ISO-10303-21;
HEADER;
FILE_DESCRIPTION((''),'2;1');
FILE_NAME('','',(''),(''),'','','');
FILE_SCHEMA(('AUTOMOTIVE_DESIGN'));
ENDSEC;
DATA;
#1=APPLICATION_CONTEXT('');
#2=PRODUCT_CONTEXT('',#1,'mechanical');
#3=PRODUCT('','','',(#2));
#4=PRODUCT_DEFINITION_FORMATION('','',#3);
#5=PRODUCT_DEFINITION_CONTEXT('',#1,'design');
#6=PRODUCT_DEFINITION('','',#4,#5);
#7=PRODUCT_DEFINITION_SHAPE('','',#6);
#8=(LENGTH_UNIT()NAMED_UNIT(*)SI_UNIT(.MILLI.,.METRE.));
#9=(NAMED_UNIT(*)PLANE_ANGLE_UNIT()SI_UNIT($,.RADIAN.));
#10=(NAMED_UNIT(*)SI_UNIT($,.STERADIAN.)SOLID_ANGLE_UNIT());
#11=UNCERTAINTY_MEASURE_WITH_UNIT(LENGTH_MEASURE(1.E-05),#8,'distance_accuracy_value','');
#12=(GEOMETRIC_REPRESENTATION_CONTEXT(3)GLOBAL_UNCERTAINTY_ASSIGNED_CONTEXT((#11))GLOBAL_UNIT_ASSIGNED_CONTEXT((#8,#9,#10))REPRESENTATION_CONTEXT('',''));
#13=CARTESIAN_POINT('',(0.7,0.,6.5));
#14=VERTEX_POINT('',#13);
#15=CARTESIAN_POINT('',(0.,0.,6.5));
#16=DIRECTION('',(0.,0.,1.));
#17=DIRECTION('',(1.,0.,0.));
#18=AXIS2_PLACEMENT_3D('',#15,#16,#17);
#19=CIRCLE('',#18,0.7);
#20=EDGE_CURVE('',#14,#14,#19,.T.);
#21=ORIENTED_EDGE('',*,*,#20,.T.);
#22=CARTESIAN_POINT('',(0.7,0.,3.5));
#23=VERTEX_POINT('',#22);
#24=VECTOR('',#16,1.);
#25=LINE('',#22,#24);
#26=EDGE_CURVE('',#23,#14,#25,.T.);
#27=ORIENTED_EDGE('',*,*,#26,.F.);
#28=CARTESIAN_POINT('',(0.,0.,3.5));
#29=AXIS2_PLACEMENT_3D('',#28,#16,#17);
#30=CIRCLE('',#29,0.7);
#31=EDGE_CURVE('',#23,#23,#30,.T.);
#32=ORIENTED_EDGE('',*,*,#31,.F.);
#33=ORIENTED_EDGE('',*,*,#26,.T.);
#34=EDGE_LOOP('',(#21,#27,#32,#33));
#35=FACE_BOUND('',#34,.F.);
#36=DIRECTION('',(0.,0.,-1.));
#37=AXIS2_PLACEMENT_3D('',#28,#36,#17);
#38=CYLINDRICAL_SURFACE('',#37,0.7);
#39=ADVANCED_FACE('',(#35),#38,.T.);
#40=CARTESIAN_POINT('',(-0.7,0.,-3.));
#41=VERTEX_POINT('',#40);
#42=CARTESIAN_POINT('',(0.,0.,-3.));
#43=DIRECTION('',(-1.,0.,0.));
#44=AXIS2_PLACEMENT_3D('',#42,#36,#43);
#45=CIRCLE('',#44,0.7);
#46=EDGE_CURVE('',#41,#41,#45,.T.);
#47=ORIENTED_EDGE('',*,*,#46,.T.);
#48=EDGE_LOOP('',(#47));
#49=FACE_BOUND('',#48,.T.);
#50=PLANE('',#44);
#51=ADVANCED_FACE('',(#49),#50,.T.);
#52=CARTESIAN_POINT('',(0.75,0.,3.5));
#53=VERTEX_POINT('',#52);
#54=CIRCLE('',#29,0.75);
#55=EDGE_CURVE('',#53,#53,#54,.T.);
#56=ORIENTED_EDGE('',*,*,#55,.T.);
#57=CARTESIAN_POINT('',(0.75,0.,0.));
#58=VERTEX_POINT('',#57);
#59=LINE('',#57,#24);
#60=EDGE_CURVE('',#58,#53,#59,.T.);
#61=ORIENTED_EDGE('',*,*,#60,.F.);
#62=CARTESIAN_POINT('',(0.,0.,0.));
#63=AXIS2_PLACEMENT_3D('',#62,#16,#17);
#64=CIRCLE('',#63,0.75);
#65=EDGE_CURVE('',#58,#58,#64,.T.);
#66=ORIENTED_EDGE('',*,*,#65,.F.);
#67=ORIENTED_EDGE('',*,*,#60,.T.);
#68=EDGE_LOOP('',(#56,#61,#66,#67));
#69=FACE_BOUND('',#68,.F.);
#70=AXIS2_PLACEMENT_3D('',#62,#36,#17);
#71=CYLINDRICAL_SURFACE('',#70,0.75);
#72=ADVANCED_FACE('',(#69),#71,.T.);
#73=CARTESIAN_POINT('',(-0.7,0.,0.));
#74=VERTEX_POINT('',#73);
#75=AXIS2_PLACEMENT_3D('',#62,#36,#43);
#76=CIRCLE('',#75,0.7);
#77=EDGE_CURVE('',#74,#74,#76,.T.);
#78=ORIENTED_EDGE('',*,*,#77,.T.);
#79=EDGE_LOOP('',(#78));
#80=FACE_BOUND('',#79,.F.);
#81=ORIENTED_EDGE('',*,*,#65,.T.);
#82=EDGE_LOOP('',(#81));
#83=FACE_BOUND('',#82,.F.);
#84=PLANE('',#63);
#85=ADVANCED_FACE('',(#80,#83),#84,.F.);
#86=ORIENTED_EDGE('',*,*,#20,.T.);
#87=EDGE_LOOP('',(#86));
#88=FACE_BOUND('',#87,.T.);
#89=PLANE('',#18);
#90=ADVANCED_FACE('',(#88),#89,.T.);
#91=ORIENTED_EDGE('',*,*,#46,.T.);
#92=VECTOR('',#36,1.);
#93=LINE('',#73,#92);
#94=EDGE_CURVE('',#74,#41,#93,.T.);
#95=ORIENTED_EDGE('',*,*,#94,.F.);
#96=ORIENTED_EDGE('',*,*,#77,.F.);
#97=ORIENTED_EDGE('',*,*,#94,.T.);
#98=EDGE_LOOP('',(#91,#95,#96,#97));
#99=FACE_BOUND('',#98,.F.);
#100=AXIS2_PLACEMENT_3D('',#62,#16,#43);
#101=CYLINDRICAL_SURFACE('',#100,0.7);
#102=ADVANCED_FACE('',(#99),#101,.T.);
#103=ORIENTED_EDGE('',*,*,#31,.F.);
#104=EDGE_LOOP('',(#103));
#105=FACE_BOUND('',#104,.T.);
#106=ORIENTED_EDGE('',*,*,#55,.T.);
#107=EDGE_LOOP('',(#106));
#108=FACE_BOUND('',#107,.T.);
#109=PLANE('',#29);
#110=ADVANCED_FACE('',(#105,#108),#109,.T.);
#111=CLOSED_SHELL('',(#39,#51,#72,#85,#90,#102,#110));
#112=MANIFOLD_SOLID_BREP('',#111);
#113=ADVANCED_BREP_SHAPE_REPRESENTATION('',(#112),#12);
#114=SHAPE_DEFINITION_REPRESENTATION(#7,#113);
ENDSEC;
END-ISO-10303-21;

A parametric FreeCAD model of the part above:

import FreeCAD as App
import Part
import Sketcher

V = App.Vector
Q = App.Units.Quantity

doc = App.newDocument("Part")
body = doc.addObject("PartDesign::Body", "Body")

sketch1 = body.newObject("Sketcher::SketchObject", "Sketch")
sketch1.AttachmentSupport = (doc.getObject("XY_Plane"), [""])
sketch1.MapMode = "FlatFace"
sketch1.addGeometry(Part.Circle(V(0, 0, 0), V(0, 0, 1), 0.8), False)
sketch1.addConstraint(Sketcher.Constraint("Coincident", 0, 3, -1, 1))
sketch1.addConstraint(Sketcher.Constraint("Diameter", 0, Q("1.5 mm")))
pad1 = body.newObject("PartDesign::Pad", "Pad")
pad1.Profile = sketch1
pad1.Length = 3.5

sketch2 = body.newObject("Sketcher::SketchObject", "Sketch001")
sketch2.AttachmentSupport = (doc.getObject("XY_Plane"), [""])
sketch2.MapMode = "FlatFace"
sketch2.AttachmentOffset = App.Placement(V(0, 0, 3.5), App.Rotation())
sketch2.addGeometry(Part.Circle(V(0, 0, 0), V(0, 0, 1), 0.7), False)
sketch2.addConstraint(Sketcher.Constraint("Coincident", 0, 3, -1, 1))
sketch2.addConstraint(Sketcher.Constraint("Diameter", 0, Q("1.4 mm")))
pad2 = body.newObject("PartDesign::Pad", "Pad001")
pad2.Profile = sketch2
pad2.Length = 3

sketch3 = body.newObject("Sketcher::SketchObject", "Sketch002")
sketch3.AttachmentSupport = (doc.getObject("XY_Plane"), [""])
sketch3.MapMode = "FlatFace"
sketch3.addGeometry(Part.Circle(V(0, 0, 0), V(0, 0, 1), 0.7), False)
sketch3.addConstraint(Sketcher.Constraint("Coincident", 0, 3, -1, 1))
sketch3.addConstraint(Sketcher.Constraint("Diameter", 0, Q("1.4 mm")))
pad3 = body.newObject("PartDesign::Pad", "Pad002")
pad3.Profile = sketch3
pad3.Length = 3
pad3.Reversed = True

doc.recompute()
